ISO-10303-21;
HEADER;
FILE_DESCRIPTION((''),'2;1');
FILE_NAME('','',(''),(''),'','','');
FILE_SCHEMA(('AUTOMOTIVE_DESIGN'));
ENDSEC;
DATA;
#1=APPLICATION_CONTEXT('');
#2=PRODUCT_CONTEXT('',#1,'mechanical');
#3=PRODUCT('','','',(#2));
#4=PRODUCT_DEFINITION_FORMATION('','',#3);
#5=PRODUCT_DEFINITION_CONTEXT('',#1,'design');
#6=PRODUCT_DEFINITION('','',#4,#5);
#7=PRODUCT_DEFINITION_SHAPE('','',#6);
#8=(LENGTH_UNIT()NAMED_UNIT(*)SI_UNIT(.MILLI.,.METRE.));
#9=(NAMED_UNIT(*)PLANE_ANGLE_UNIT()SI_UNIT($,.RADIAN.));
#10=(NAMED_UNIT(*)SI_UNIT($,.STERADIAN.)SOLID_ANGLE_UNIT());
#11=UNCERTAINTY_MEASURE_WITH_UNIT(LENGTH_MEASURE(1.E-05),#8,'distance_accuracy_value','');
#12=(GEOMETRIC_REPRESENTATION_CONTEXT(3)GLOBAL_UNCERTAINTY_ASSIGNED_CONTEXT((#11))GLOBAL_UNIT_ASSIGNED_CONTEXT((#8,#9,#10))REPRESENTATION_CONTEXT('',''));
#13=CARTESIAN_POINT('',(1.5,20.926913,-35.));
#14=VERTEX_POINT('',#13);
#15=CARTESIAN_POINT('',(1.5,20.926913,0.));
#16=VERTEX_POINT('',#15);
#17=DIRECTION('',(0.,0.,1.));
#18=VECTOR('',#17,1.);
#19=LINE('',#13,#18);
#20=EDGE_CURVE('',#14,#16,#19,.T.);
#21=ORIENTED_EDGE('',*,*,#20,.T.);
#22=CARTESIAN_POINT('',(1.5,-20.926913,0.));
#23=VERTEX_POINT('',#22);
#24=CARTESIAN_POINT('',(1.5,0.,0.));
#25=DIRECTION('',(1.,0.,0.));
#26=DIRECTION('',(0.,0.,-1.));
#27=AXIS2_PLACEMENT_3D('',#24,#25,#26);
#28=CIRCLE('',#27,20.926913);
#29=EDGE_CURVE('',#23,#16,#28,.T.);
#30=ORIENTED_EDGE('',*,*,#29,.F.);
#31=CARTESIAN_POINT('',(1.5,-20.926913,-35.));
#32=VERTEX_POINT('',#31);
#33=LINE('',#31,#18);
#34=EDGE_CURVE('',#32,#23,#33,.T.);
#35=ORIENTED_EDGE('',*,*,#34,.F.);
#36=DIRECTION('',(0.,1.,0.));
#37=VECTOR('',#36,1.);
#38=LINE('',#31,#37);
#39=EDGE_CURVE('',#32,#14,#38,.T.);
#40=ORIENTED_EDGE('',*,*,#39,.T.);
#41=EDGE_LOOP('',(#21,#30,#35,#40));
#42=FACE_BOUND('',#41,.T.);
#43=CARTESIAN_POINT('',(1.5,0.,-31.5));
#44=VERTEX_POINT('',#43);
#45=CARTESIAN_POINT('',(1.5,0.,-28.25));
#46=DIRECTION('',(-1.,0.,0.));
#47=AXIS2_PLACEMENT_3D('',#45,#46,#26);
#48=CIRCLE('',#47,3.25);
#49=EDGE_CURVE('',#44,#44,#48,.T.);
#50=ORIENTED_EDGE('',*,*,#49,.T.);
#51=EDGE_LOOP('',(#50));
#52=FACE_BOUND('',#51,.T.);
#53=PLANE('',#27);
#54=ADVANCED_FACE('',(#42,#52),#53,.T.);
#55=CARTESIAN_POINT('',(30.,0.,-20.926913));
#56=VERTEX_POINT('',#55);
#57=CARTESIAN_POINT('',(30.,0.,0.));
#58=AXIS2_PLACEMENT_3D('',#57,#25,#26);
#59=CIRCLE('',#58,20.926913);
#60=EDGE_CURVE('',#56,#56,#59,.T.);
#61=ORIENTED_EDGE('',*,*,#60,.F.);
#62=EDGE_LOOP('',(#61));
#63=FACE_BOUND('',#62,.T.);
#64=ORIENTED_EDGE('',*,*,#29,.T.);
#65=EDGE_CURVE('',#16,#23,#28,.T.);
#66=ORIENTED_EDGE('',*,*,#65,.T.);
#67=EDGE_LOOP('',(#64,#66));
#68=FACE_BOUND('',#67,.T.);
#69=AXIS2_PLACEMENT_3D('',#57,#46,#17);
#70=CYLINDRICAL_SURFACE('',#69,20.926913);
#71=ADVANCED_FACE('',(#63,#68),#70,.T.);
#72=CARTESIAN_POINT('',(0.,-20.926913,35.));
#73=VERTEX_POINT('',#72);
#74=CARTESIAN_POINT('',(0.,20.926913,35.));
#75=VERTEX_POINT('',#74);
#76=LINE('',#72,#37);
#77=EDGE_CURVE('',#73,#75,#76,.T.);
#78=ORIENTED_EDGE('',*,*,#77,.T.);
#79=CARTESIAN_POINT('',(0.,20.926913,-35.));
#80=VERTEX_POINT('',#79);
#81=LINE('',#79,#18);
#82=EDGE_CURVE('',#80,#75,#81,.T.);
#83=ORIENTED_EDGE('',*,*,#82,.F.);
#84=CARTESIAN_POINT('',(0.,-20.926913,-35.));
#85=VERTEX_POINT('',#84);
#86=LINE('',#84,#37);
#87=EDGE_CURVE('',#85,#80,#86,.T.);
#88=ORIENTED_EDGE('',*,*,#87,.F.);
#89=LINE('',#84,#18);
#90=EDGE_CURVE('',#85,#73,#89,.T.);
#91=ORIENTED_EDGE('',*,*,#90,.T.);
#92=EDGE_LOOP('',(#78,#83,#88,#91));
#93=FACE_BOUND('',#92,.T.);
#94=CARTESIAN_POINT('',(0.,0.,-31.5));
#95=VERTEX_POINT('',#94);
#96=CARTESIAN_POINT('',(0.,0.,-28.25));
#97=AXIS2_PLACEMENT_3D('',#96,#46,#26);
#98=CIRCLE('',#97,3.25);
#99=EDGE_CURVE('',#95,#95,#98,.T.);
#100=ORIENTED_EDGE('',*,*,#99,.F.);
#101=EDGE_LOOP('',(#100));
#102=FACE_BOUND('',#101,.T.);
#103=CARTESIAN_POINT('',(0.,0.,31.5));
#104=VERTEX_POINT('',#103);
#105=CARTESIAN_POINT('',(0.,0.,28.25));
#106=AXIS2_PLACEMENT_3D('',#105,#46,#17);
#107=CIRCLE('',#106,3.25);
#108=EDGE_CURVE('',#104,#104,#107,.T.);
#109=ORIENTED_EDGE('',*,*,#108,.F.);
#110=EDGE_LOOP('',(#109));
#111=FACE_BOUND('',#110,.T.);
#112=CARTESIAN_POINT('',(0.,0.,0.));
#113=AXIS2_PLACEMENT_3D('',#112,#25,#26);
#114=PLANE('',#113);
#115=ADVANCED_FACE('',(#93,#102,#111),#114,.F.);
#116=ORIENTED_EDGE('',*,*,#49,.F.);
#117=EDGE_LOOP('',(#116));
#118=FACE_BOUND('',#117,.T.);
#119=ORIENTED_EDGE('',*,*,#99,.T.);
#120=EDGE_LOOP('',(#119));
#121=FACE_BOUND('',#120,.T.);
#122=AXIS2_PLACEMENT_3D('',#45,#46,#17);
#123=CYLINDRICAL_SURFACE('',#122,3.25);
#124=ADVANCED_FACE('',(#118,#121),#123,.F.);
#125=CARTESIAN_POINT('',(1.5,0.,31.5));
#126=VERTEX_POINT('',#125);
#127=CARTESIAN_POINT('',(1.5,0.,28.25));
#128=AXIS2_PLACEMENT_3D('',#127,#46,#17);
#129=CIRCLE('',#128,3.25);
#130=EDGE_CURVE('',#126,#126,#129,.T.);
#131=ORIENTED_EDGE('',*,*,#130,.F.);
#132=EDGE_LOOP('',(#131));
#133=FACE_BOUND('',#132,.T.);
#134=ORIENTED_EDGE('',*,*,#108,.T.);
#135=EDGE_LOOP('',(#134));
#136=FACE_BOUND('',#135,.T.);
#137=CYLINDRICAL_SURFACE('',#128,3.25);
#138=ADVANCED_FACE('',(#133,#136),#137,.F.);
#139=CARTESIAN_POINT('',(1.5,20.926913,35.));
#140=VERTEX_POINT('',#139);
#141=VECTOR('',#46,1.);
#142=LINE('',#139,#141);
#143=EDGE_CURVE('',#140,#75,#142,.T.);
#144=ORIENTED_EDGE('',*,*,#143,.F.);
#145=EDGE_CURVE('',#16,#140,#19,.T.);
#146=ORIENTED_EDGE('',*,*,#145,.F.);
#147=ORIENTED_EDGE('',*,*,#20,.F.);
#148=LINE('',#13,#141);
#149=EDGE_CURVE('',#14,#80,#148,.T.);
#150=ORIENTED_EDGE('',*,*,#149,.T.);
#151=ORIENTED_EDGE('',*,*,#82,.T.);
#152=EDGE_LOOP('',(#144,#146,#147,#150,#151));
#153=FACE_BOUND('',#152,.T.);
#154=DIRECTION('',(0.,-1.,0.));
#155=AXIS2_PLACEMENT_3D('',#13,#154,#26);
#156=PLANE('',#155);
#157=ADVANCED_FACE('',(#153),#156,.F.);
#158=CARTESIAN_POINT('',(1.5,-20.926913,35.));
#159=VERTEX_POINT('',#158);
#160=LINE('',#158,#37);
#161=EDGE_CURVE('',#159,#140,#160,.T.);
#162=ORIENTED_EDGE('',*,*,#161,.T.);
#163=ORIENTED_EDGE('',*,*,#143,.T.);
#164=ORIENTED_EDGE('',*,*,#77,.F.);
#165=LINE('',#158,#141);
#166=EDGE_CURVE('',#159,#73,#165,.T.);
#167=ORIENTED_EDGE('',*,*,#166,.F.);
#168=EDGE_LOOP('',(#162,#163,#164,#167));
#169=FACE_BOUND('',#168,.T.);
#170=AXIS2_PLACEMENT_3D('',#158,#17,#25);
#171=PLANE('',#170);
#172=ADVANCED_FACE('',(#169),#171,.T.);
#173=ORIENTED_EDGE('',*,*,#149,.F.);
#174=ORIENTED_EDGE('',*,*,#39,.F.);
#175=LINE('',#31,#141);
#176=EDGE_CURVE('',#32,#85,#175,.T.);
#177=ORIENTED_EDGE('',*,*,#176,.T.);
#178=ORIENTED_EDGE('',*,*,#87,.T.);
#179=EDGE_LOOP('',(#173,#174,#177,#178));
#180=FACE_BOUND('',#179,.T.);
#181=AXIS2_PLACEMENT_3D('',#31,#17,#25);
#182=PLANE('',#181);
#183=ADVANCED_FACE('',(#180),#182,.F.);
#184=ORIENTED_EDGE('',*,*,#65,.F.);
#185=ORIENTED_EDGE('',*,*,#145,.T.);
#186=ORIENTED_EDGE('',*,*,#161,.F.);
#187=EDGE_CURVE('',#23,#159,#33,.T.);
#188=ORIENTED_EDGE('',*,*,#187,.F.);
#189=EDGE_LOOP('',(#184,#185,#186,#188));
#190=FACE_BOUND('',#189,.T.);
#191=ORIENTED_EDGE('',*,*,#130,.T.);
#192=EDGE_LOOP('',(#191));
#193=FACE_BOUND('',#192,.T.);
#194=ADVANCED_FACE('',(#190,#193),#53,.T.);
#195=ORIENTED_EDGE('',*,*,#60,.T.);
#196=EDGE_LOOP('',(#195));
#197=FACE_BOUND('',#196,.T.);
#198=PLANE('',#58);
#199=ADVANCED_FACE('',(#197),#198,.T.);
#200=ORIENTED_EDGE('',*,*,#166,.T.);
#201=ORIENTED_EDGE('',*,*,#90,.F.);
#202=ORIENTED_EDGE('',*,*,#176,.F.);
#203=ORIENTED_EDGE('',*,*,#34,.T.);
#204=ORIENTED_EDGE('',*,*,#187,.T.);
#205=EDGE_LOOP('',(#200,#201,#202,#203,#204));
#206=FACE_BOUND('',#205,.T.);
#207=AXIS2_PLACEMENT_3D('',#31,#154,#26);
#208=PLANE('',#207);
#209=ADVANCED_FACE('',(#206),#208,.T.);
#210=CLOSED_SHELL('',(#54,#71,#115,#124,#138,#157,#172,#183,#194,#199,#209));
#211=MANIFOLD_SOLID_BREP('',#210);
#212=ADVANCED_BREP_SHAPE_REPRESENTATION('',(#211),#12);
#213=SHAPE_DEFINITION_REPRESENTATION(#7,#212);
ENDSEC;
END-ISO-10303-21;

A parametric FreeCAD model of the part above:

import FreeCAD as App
import Part
import Sketcher
from FreeCAD import Vector
Q = App.Units.Quantity

doc = App.newDocument("Part")
body = doc.addObject("PartDesign::Body", "Body")

sketch1 = doc.addObject("Sketcher::SketchObject", "Sketch")
body.addObject(sketch1)
sketch1.AttachmentSupport = (doc.YZ_Plane, [""])
sketch1.MapMode = "FlatFace"
sketch1.addGeometry(Part.Circle(Vector(0, 0, 0), Vector(0, 0, 1), 21), False)
sketch1.addConstraint([
    Sketcher.Constraint("Coincident", 0, 3, -1, 1),
    Sketcher.Constraint("Diameter", 0, Q("41.853826 mm")),
])
pad1 = doc.addObject("PartDesign::Pad", "Pad")
body.addObject(pad1)
pad1.Profile = sketch1
pad1.Length = 30

sketch2 = doc.addObject("Sketcher::SketchObject", "Sketch001")
body.addObject(sketch2)
sketch2.AttachmentSupport = (doc.YZ_Plane, [""])
sketch2.MapMode = "FlatFace"
sketch2.addGeometry([
    Part.LineSegment(Vector(21, -35, 0), Vector(-21, -35, 0)),
    Part.LineSegment(Vector(-21, -35, 0), Vector(-21, 35, 0)),
    Part.LineSegment(Vector(-21, 35, 0), Vector(21, 35, 0)),
    Part.LineSegment(Vector(21, 35, 0), Vector(21, -35, 0)),
], False)
sketch2.addConstraint([
    Sketcher.Constraint("Coincident", 0, 2, 1, 1),
    Sketcher.Constraint("Coincident", 1, 2, 2, 1),
    Sketcher.Constraint("Coincident", 2, 2, 3, 1),
    Sketcher.Constraint("Coincident", 3, 2, 0, 1),
    Sketcher.Constraint("Horizontal", 0),
    Sketcher.Constraint("Vertical", 1),
    Sketcher.Constraint("Horizontal", 2),
    Sketcher.Constraint("Vertical", 3),
    Sketcher.Constraint("Symmetric", 0, 2, 2, 2, -1, 1),
    Sketcher.Constraint("DistanceY", 1, 1, 1, 2, Q("70 mm")),
    Sketcher.Constraint("DistanceX", 0, 2, 0, 1, Q("41.853826 mm")),
])
pad2 = doc.addObject("PartDesign::Pad", "Pad001")
body.addObject(pad2)
pad2.Profile = sketch2
pad2.Length = 1.5

sketch3 = doc.addObject("Sketcher::SketchObject", "Sketch002")
body.addObject(sketch3)
sketch3.AttachmentSupport = (doc.YZ_Plane, [""])
sketch3.MapMode = "FlatFace"
sketch3.addGeometry([
    Part.Circle(Vector(0, 28.2, 0), Vector(0, 0, 1), 3.2),
    Part.Circle(Vector(0, -28.2, 0), Vector(0, 0, 1), 3.2),
], False)
sketch3.addConstraint([
    Sketcher.Constraint("Equal", 0, 1),
    Sketcher.Constraint("Symmetric", 0, 3, 1, 3, -1, 1),
    Sketcher.Constraint("PointOnObject", 0, 3, -2),
    Sketcher.Constraint("Diameter", 0, Q("6.5 mm")),
    Sketcher.Constraint("DistanceY", 1, 3, 0, 3, Q("56.5 mm")),
])
pocket1 = doc.addObject("PartDesign::Pocket", "Pocket")
body.addObject(pocket1)
pocket1.Profile = sketch3
pocket1.Length = 1.5
pocket1.Reversed = True

doc.recompute()
